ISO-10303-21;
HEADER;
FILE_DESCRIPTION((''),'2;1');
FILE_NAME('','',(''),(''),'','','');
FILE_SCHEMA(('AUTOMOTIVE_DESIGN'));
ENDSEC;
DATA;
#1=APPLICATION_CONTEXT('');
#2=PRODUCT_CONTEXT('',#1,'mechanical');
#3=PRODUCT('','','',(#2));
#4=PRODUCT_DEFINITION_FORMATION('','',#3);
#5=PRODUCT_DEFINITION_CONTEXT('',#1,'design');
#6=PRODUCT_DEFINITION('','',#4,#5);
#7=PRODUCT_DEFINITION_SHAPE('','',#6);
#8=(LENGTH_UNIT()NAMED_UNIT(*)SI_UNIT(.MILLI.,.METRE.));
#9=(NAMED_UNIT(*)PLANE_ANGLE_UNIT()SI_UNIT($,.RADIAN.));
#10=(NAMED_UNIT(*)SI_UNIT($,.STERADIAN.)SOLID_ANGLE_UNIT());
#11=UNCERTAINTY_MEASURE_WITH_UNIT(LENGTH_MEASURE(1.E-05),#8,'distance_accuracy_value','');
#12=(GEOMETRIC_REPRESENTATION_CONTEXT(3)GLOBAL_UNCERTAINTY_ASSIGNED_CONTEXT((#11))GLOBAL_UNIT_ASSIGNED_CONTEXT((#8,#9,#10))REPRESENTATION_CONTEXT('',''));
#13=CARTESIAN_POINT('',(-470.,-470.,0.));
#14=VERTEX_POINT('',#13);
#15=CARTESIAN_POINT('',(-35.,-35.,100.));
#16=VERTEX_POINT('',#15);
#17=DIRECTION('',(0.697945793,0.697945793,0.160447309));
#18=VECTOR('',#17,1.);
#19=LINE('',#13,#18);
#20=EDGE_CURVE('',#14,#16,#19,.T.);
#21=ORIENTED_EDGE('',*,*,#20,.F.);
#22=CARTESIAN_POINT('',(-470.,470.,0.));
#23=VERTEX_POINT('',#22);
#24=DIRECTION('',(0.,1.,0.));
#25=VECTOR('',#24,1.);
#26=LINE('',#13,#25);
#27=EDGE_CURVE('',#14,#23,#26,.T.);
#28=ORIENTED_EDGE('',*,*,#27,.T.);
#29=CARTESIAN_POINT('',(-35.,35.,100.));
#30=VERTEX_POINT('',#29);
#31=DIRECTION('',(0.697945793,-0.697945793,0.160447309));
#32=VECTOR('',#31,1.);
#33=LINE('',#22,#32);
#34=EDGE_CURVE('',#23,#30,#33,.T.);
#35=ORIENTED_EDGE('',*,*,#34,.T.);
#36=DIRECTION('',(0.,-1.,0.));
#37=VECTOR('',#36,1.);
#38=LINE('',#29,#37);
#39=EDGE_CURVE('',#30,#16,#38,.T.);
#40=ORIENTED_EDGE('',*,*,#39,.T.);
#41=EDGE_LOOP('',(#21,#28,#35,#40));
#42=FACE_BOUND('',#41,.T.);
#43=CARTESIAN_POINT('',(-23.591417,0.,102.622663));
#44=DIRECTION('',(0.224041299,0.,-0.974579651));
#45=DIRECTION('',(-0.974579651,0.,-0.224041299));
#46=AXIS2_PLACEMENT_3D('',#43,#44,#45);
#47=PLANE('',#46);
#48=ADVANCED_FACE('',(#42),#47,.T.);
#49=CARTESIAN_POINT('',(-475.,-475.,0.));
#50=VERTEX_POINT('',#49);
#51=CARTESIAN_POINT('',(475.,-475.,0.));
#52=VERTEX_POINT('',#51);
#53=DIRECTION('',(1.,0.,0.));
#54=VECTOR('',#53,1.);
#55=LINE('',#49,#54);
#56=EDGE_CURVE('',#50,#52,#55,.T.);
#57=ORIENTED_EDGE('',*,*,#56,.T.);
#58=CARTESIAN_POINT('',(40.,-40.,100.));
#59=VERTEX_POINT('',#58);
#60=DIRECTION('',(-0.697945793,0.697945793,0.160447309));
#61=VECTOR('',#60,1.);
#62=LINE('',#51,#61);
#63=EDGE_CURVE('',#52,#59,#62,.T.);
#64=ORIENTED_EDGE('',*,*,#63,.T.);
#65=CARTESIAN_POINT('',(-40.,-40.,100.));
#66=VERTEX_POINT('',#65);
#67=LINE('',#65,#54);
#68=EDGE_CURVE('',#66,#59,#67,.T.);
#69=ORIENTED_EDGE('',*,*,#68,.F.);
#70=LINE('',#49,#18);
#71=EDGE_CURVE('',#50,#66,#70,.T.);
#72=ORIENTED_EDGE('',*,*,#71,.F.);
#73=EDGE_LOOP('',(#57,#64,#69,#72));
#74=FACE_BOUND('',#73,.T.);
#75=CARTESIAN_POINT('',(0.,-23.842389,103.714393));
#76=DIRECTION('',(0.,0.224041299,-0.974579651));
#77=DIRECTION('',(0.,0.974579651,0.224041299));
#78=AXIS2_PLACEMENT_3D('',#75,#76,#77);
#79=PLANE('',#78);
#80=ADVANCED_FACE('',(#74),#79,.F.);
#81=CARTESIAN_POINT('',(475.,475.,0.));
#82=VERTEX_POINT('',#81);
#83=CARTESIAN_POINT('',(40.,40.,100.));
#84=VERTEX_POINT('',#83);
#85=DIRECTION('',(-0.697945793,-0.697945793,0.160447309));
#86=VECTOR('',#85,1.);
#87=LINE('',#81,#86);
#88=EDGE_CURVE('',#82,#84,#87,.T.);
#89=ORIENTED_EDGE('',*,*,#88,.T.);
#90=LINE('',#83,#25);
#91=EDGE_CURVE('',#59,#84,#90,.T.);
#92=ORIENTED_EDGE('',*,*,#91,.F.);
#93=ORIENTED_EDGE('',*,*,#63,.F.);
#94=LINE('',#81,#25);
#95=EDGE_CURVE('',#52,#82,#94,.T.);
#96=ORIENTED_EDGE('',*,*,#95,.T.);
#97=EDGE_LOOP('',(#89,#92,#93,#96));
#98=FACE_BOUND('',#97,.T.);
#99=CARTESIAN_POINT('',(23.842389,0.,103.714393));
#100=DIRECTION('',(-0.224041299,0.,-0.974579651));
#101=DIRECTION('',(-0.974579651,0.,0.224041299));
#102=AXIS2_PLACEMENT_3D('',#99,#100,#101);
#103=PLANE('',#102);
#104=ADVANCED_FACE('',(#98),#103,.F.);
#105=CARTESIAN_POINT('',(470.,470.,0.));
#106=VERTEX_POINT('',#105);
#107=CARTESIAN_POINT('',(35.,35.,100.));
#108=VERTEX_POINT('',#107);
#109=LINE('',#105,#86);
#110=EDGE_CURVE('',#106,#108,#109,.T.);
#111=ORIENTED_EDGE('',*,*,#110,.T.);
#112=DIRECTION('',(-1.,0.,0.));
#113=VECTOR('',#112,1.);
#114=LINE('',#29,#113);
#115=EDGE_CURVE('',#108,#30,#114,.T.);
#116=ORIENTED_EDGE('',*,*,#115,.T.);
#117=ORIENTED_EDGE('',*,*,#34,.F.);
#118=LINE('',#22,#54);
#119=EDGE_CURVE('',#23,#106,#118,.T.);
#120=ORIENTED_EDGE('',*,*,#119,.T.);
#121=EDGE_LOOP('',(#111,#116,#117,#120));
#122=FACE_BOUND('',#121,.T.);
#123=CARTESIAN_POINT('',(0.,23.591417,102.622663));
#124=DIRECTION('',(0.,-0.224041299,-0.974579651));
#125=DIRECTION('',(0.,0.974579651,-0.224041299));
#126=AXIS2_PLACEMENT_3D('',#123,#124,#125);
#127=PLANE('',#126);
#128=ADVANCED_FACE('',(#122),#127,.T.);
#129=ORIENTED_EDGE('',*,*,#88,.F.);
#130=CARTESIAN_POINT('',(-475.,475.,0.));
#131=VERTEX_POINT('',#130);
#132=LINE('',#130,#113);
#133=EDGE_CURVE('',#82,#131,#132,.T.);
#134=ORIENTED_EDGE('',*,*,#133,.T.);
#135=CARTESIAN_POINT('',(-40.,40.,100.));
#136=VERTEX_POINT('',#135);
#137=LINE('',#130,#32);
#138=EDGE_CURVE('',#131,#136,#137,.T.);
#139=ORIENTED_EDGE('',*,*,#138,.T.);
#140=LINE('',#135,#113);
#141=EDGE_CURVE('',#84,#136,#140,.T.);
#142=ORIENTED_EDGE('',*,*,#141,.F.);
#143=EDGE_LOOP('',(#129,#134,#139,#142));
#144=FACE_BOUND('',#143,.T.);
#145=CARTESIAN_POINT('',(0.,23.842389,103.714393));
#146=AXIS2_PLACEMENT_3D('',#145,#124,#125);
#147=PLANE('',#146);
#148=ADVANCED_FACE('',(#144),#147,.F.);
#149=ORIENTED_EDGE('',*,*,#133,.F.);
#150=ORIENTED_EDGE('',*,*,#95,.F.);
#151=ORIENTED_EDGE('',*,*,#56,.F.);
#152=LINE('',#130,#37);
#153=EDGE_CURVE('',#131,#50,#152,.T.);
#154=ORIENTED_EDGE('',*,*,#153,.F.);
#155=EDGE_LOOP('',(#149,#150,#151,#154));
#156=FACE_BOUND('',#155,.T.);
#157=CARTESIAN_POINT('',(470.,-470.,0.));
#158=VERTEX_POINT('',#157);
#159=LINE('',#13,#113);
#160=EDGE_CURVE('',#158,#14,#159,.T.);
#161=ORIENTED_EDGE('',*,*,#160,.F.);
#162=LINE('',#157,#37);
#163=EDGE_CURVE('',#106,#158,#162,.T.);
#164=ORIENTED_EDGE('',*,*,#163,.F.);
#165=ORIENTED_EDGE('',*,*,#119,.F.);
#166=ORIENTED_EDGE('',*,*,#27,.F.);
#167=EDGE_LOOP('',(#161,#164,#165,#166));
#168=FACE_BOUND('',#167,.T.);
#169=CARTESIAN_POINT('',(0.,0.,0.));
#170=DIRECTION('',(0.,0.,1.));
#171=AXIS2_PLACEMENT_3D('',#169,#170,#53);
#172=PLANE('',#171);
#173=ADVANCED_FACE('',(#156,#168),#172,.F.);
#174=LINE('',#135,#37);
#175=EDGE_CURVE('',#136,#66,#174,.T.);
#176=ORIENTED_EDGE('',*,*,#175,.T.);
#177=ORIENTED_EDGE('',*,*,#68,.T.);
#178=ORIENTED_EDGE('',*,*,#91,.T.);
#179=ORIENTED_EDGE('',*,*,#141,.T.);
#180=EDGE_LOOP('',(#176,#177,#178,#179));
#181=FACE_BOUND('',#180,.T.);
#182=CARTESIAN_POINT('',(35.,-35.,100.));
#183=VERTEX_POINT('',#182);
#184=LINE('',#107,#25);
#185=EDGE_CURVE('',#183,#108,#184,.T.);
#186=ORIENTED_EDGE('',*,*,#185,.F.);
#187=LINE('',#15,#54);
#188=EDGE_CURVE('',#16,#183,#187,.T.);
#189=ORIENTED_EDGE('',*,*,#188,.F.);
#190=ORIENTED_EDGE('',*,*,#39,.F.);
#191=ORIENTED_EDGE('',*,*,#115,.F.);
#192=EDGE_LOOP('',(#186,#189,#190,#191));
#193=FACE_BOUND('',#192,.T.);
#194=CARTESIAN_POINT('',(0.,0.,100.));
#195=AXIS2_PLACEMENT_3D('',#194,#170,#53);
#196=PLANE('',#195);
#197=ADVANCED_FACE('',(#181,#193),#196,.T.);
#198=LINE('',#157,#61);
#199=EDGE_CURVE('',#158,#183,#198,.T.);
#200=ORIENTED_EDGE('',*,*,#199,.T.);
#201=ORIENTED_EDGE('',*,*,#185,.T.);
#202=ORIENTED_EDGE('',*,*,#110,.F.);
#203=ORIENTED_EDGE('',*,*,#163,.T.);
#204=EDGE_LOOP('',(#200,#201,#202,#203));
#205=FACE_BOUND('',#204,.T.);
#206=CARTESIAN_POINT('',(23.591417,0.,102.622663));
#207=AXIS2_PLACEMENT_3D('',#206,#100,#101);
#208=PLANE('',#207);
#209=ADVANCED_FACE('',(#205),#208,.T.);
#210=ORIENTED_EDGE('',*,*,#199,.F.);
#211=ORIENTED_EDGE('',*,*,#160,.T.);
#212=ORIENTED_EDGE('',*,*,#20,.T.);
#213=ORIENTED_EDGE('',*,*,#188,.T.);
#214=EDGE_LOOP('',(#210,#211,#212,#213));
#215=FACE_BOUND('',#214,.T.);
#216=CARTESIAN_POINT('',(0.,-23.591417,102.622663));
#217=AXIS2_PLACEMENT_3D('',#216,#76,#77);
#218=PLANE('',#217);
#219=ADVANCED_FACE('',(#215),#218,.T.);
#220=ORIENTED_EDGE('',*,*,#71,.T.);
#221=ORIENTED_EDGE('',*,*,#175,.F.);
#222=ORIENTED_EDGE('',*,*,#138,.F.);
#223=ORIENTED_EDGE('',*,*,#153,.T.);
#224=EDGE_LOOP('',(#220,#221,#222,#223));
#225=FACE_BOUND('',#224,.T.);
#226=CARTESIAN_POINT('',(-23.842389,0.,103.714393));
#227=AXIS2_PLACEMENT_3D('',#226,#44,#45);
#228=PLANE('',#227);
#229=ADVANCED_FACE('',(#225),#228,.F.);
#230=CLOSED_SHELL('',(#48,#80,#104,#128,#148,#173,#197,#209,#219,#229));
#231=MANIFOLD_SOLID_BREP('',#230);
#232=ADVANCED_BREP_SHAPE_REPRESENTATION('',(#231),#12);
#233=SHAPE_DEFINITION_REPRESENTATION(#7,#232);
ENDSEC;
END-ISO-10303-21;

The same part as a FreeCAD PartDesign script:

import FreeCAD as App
import Part
import Sketcher
Q = App.Units.Quantity


def add_polygon(sketch, points):
    """Adds a closed chain of lines whose ends are joined by coincident constraints."""
    first, n = sketch.GeometryCount, len(points)
    for a, b in zip(points, points[1:] + points[:1]):
        sketch.addGeometry(Part.LineSegment(App.Vector(*a, 0), App.Vector(*b, 0)), False)
    for i in range(n):
        sketch.addConstraint(Sketcher.Constraint("Coincident", first + i, 2, first + (i + 1) % n, 1))

doc = App.newDocument("Part")
body = doc.addObject("PartDesign::Body", "Body")

sketch1 = body.newObject("Sketcher::SketchObject", "Sketch")
sketch1.AttachmentSupport = (doc.getObject("XY_Plane"), [""])
sketch1.MapMode = "FlatFace"
add_polygon(sketch1, [(475, 475), (-475, 475), (-475, -475), (475, -475)])
sketch1.addConstraint([
    Sketcher.Constraint("Horizontal", 0),
    Sketcher.Constraint("Vertical", 1),
    Sketcher.Constraint("Horizontal", 2),
    Sketcher.Constraint("Vertical", 3),
    Sketcher.Constraint("Symmetric", 0, 2, 2, 2, -1, 1),
    Sketcher.Constraint("Equal", 2, 1),
    Sketcher.Constraint("DistanceX", 0, 2, 0, 1, Q("950 mm")),
])

sketch2 = body.newObject("Sketcher::SketchObject", "Sketch001")
sketch2.AttachmentSupport = (doc.getObject("XY_Plane"), [""])
sketch2.MapMode = "FlatFace"
sketch2.AttachmentOffset = App.Placement(App.Vector(0, 0, 100), App.Rotation())
add_polygon(sketch2, [(40, 40), (-40, 40), (-40, -40), (40, -40)])
sketch2.addConstraint([
    Sketcher.Constraint("Horizontal", 0),
    Sketcher.Constraint("Vertical", 1),
    Sketcher.Constraint("Horizontal", 2),
    Sketcher.Constraint("Vertical", 3),
    Sketcher.Constraint("Symmetric", 0, 2, 2, 2, -1, 1),
    Sketcher.Constraint("Equal", 2, 1),
    Sketcher.Constraint("DistanceX", 0, 2, 0, 1, Q("80 mm")),
])

additiveloft = body.newObject("PartDesign::AdditiveLoft", "AdditiveLoft")
additiveloft.Profile = sketch1
additiveloft.Sections = [sketch2]

sketch3 = body.newObject("Sketcher::SketchObject", "Sketch002")
sketch3.AttachmentSupport = (doc.getObject("XY_Plane"), [""])
sketch3.MapMode = "FlatFace"
add_polygon(sketch3, [(470, -470), (-470, -470), (-470, 470), (470, 470)])
sketch3.addConstraint([
    Sketcher.Constraint("Horizontal", 0),
    Sketcher.Constraint("Vertical", 1),
    Sketcher.Constraint("Horizontal", 2),
    Sketcher.Constraint("Vertical", 3),
    Sketcher.Constraint("Symmetric", 0, 2, 2, 2, -1, 1),
    Sketcher.Constraint("Equal", 2, 1),
    Sketcher.Constraint("DistanceX", 0, 2, 0, 1, Q("940 mm")),
])

sketch4 = body.newObject("Sketcher::SketchObject", "Sketch003")
sketch4.AttachmentSupport = (doc.getObject("XY_Plane"), [""])
sketch4.MapMode = "FlatFace"
sketch4.AttachmentOffset = App.Placement(App.Vector(0, 0, 100), App.Rotation())
add_polygon(sketch4, [(35, 35), (-35, 35), (-35, -35), (35, -35)])
sketch4.addConstraint([
    Sketcher.Constraint("Horizontal", 0),
    Sketcher.Constraint("Vertical", 1),
    Sketcher.Constraint("Horizontal", 2),
    Sketcher.Constraint("Vertical", 3),
    Sketcher.Constraint("Symmetric", 0, 2, 2, 2, -1, 1),
    Sketcher.Constraint("Equal", 2, 1),
    Sketcher.Constraint("DistanceX", 0, 2, 0, 1, Q("70 mm")),
])

subtractiveloft = body.newObject("PartDesign::SubtractiveLoft", "SubtractiveLoft")
subtractiveloft.Profile = sketch3
subtractiveloft.Sections = [sketch4]

doc.recompute()
